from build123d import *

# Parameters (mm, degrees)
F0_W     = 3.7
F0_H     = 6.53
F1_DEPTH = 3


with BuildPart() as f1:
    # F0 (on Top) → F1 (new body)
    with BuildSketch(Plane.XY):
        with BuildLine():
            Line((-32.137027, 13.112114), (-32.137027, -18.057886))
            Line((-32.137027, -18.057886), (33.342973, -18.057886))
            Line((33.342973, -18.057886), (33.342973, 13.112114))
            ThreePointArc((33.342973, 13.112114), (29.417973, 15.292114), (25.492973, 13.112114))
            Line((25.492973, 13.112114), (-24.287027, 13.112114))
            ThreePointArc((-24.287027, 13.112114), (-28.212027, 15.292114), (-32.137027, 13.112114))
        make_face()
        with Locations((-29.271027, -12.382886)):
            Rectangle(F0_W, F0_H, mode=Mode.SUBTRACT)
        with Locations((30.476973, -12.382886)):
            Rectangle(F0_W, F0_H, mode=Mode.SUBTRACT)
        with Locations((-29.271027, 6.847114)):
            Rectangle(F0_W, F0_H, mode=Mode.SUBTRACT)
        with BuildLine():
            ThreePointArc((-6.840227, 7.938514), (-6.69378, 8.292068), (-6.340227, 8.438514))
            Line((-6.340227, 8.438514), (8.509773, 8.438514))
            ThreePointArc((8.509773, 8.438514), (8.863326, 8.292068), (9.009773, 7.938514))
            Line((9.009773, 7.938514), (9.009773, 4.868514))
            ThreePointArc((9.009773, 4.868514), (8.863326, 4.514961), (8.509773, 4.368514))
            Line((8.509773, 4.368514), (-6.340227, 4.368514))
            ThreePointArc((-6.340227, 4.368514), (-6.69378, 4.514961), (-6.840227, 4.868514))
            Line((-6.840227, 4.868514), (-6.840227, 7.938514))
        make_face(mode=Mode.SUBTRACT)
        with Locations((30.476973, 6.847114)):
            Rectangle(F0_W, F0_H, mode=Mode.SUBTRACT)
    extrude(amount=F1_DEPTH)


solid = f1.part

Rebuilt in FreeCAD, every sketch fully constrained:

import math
import FreeCAD as App
import Part
import Sketcher

doc = App.newDocument("Part")
params = doc.addObject("Spreadsheet::Sheet", "Params")
for row, (alias, value) in enumerate([
    ("sketch1_radius", "0.5 mm"),
    ("sketch1_width", "3.7 mm"),
    ("sketch1_width2", "65.48 mm"),
    ("sketch1_width3", "49.78 mm"),
    ("sketch1_width4", "14.85 mm"),
    ("pad1_length", "3 mm"),
], start=1):
    params.set(f"A{row}", alias)
    params.set(f"B{row}", "=" + value)
    params.setAlias(f"B{row}", alias)

body = doc.addObject("PartDesign::Body", "Body")

sketch1 = body.newObject("Sketcher::SketchObject", "Sketch")
sketch1.AttachmentSupport = (doc.getObject("XY_Plane"), [""])
sketch1.MapMode = "FlatFace"
sketch1.addGeometry([
    Part.LineSegment(App.Vector(-32.137027, 13.112114, 0), App.Vector(-32.137027, -18.057886, 0)),
    Part.LineSegment(App.Vector(-32.137027, -18.057886, 0), App.Vector(33.342973, -18.057886, 0)),
    Part.LineSegment(App.Vector(33.342973, -18.057886, 0), App.Vector(33.342973, 13.112114, 0)),
    Part.ArcOfCircle(Part.Circle(App.Vector(29.417973, 10.668714, 0), App.Vector(0, 0, 1), 4.6234), math.radians(31.903187), math.radians(148.096813)),
    Part.LineSegment(App.Vector(25.492973, 13.112114, 0), App.Vector(-24.287027, 13.112114, 0)),
    Part.ArcOfCircle(Part.Circle(App.Vector(-28.212027, 10.668714, 0), App.Vector(0, 0, 1), 4.6234), math.radians(31.903187), math.radians(148.096813)),
    Part.LineSegment(App.Vector(-27.421027, -15.647886, 0), App.Vector(-31.121027, -15.647886, 0)),
    Part.LineSegment(App.Vector(-31.121027, -15.647886, 0), App.Vector(-31.121027, -9.117886, 0)),
    Part.LineSegment(App.Vector(-31.121027, -9.117886, 0), App.Vector(-27.421027, -9.117886, 0)),
    Part.LineSegment(App.Vector(-27.421027, -9.117886, 0), App.Vector(-27.421027, -15.647886, 0)),
    Part.LineSegment(App.Vector(32.326973, -15.647886, 0), App.Vector(28.626973, -15.647886, 0)),
    Part.LineSegment(App.Vector(28.626973, -15.647886, 0), App.Vector(28.626973, -9.117886, 0)),
    Part.LineSegment(App.Vector(28.626973, -9.117886, 0), App.Vector(32.326973, -9.117886, 0)),
    Part.LineSegment(App.Vector(32.326973, -9.117886, 0), App.Vector(32.326973, -15.647886, 0)),
    Part.LineSegment(App.Vector(-27.421027, 3.582114, 0), App.Vector(-31.121027, 3.582114, 0)),
    Part.LineSegment(App.Vector(-31.121027, 3.582114, 0), App.Vector(-31.121027, 10.112114, 0)),
    Part.LineSegment(App.Vector(-31.121027, 10.112114, 0), App.Vector(-27.421027, 10.112114, 0)),
    Part.LineSegment(App.Vector(-27.421027, 10.112114, 0), App.Vector(-27.421027, 3.582114, 0)),
    Part.LineSegment(App.Vector(-6.840227, 4.868514, 0), App.Vector(-6.840227, 7.938514, 0)),
    Part.ArcOfCircle(Part.Circle(App.Vector(-6.340227, 7.938514, 0), App.Vector(0, 0, 1), 0.5), math.radians(89.999957), math.radians(180.000043)),
    Part.LineSegment(App.Vector(-6.340227, 8.438514, 0), App.Vector(8.509773, 8.438514, 0)),
    Part.ArcOfCircle(Part.Circle(App.Vector(8.509773, 7.938514, 0), App.Vector(0, 0, 1), 0.5), math.radians(-0.000043), math.radians(90.000043)),
    Part.LineSegment(App.Vector(9.009773, 7.938514, 0), App.Vector(9.009773, 4.868514, 0)),
    Part.ArcOfCircle(Part.Circle(App.Vector(8.509772, 4.868515, 0), App.Vector(0, 0, 1), 0.500001), math.radians(-89.999847), math.radians(-0.000153)),
    Part.LineSegment(App.Vector(8.509773, 4.368514, 0), App.Vector(-6.340227, 4.368514, 0)),
    Part.ArcOfCircle(Part.Circle(App.Vector(-6.340226, 4.868515, 0), App.Vector(0, 0, 1), 0.500001), math.radians(-179.999847), math.radians(-90.000153)),
    Part.LineSegment(App.Vector(32.326973, 3.582114, 0), App.Vector(28.626973, 3.582114, 0)),
    Part.LineSegment(App.Vector(28.626973, 3.582114, 0), App.Vector(28.626973, 10.112114, 0)),
    Part.LineSegment(App.Vector(28.626973, 10.112114, 0), App.Vector(32.326973, 10.112114, 0)),
    Part.LineSegment(App.Vector(32.326973, 10.112114, 0), App.Vector(32.326973, 3.582114, 0)),
], False)
sketch1.addConstraint([
    Sketcher.Constraint("Coincident", 0, 2, 1, 1),
    Sketcher.Constraint("Coincident", 1, 2, 2, 1),
    Sketcher.Constraint("Coincident", 2, 2, 3, 1),
    Sketcher.Constraint("Coincident", 3, 2, 4, 1),
    Sketcher.Constraint("Coincident", 4, 2, 5, 1),
    Sketcher.Constraint("Coincident", 5, 2, 0, 1),
    Sketcher.Constraint("Coincident", 6, 2, 7, 1),
    Sketcher.Constraint("Coincident", 7, 2, 8, 1),
    Sketcher.Constraint("Coincident", 8, 2, 9, 1),
    Sketcher.Constraint("Coincident", 9, 2, 6, 1),
    Sketcher.Constraint("Coincident", 10, 2, 11, 1),
    Sketcher.Constraint("Coincident", 11, 2, 12, 1),
    Sketcher.Constraint("Coincident", 12, 2, 13, 1),
    Sketcher.Constraint("Coincident", 13, 2, 10, 1),
    Sketcher.Constraint("Coincident", 14, 2, 15, 1),
    Sketcher.Constraint("Coincident", 15, 2, 16, 1),
    Sketcher.Constraint("Coincident", 16, 2, 17, 1),
    Sketcher.Constraint("Coincident", 17, 2, 14, 1),
    Sketcher.Constraint("Tangent", 18, 2, 19, 2),
    Sketcher.Constraint("Tangent", 19, 1, 20, 1),
    Sketcher.Constraint("Tangent", 20, 2, 21, 2),
    Sketcher.Constraint("Tangent", 21, 1, 22, 1),
    Sketcher.Constraint("Coincident", 22, 2, 23, 2),
    Sketcher.Constraint("Coincident", 23, 1, 24, 1),
    Sketcher.Constraint("Coincident", 24, 2, 25, 2),
    Sketcher.Constraint("Coincident", 25, 1, 18, 1),
    Sketcher.Constraint("Coincident", 26, 2, 27, 1),
    Sketcher.Constraint("Coincident", 27, 2, 28, 1),
    Sketcher.Constraint("Coincident", 28, 2, 29, 1),
    Sketcher.Constraint("Coincident", 29, 2, 26, 1),
    Sketcher.Constraint("Vertical", 0),
    Sketcher.Constraint("Horizontal", 1),
    Sketcher.Constraint("Vertical", 2),
    Sketcher.Constraint("Horizontal", 4),
    Sketcher.Constraint("Horizontal", 6),
    Sketcher.Constraint("Vertical", 7),
    Sketcher.Constraint("Horizontal", 8),
    Sketcher.Constraint("Vertical", 9),
    Sketcher.Constraint("Horizontal", 10),
    Sketcher.Constraint("Vertical", 11),
    Sketcher.Constraint("Horizontal", 12),
    Sketcher.Constraint("Vertical", 13),
    Sketcher.Constraint("Horizontal", 14),
    Sketcher.Constraint("Vertical", 15),
    Sketcher.Constraint("Horizontal", 16),
    Sketcher.Constraint("Vertical", 17),
    Sketcher.Constraint("Vertical", 18),
    Sketcher.Constraint("Horizontal", 20),
    Sketcher.Constraint("Vertical", 22),
    Sketcher.Constraint("Horizontal", 24),
    Sketcher.Constraint("Horizontal", 26),
    Sketcher.Constraint("Vertical", 27),
    Sketcher.Constraint("Horizontal", 28),
    Sketcher.Constraint("Vertical", 29),
    Sketcher.Constraint("Equal", 3, 5),
    Sketcher.Constraint("Equal", 19, 21),
    Sketcher.Constraint("Equal", 21, 23),
    Sketcher.Constraint("Equal", 23, 25),
    Sketcher.Constraint("Horizontal", 3, 3, 5, 3),
    Sketcher.Constraint("Horizontal", 2, 2, 3, 2),
    Sketcher.Constraint("Horizontal", 4, 2, 5, 2),
    Sketcher.Constraint("Horizontal", 9, 2, 10, 2),
    Sketcher.Constraint("Horizontal", 8, 2, 11, 2),
    Sketcher.Constraint("Horizontal", 25, 3, 22, 2),
    Sketcher.Constraint("Horizontal", 22, 2, 25, 1),
    Sketcher.Constraint("Horizontal", 17, 2, 26, 2),
    Sketcher.Constraint("Horizontal", 16, 2, 27, 2),
    Sketcher.Constraint("Vertical", 7, 2, 14, 2),
    Sketcher.Constraint("Vertical", 9, 2, 16, 2),
    Sketcher.Constraint("Vertical", 20, 2, 23, 1),
    Sketcher.Constraint("Vertical", 19, 1, 24, 2),
    Sketcher.Constraint("Vertical", 11, 2, 26, 2),
    Sketcher.Constraint("Vertical", 13, 2, 28, 2),
    Sketcher.Constraint("Equal", 8, 10),
    Sketcher.Constraint("Equal", 13, 15),
    Sketcher.Constraint("Radius", 19, 0.5),
    Sketcher.Constraint("DistanceX", 6, 2, 6, 1, 3.7),
    Sketcher.Constraint("DistanceY", 15, 2, 5, 2, 3.0),
    Sketcher.Constraint("DistanceX", 1, 1, 1, 2, 65.48),
    Sketcher.Constraint("DistanceX", 4, 2, 4, 1, 49.78),
    Sketcher.Constraint("DistanceX", 20, 1, 20, 2, 14.85),
    Sketcher.Constraint("DistanceY", 0, 2, 0, 1, 31.17),
    Sketcher.Constraint("DistanceY", 7, 1, 7, 2, 6.53),
    Sketcher.Constraint("DistanceY", 18, 1, 18, 2, 3.07),
    Sketcher.Constraint("Radius", 3, 4.6234),
    Sketcher.Constraint("DistanceY", 7, 2, 14, 2, 12.7),
    Sketcher.Constraint("DistanceX", 0, 2, 6, 2, 1.016),
    Sketcher.Constraint("DistanceX", 10, 2, 1, 2, 4.716),
    Sketcher.Constraint("DistanceX", 5, 3, 19, 3, 21.8718),
    Sketcher.Constraint("DistanceY", 19, 3, 5, 3, 2.730199),
    Sketcher.Constraint("DistanceX", -1, 1, 23, 3, 8.509772),
    Sketcher.Constraint("DistanceY", -1, 1, 3, 3, 10.668714),
])
sketch1.setExpression("Constraints[75]", "Params.sketch1_radius")
sketch1.setExpression("Constraints[76]", "Params.sketch1_width")
sketch1.setExpression("Constraints[78]", "Params.sketch1_width2")
sketch1.setExpression("Constraints[79]", "Params.sketch1_width3")
sketch1.setExpression("Constraints[80]", "Params.sketch1_width4")
pad1 = body.newObject("PartDesign::Pad", "Pad")
pad1.Profile = sketch1
pad1.setExpression("Length", "Params.pad1_length")

doc.recompute()
